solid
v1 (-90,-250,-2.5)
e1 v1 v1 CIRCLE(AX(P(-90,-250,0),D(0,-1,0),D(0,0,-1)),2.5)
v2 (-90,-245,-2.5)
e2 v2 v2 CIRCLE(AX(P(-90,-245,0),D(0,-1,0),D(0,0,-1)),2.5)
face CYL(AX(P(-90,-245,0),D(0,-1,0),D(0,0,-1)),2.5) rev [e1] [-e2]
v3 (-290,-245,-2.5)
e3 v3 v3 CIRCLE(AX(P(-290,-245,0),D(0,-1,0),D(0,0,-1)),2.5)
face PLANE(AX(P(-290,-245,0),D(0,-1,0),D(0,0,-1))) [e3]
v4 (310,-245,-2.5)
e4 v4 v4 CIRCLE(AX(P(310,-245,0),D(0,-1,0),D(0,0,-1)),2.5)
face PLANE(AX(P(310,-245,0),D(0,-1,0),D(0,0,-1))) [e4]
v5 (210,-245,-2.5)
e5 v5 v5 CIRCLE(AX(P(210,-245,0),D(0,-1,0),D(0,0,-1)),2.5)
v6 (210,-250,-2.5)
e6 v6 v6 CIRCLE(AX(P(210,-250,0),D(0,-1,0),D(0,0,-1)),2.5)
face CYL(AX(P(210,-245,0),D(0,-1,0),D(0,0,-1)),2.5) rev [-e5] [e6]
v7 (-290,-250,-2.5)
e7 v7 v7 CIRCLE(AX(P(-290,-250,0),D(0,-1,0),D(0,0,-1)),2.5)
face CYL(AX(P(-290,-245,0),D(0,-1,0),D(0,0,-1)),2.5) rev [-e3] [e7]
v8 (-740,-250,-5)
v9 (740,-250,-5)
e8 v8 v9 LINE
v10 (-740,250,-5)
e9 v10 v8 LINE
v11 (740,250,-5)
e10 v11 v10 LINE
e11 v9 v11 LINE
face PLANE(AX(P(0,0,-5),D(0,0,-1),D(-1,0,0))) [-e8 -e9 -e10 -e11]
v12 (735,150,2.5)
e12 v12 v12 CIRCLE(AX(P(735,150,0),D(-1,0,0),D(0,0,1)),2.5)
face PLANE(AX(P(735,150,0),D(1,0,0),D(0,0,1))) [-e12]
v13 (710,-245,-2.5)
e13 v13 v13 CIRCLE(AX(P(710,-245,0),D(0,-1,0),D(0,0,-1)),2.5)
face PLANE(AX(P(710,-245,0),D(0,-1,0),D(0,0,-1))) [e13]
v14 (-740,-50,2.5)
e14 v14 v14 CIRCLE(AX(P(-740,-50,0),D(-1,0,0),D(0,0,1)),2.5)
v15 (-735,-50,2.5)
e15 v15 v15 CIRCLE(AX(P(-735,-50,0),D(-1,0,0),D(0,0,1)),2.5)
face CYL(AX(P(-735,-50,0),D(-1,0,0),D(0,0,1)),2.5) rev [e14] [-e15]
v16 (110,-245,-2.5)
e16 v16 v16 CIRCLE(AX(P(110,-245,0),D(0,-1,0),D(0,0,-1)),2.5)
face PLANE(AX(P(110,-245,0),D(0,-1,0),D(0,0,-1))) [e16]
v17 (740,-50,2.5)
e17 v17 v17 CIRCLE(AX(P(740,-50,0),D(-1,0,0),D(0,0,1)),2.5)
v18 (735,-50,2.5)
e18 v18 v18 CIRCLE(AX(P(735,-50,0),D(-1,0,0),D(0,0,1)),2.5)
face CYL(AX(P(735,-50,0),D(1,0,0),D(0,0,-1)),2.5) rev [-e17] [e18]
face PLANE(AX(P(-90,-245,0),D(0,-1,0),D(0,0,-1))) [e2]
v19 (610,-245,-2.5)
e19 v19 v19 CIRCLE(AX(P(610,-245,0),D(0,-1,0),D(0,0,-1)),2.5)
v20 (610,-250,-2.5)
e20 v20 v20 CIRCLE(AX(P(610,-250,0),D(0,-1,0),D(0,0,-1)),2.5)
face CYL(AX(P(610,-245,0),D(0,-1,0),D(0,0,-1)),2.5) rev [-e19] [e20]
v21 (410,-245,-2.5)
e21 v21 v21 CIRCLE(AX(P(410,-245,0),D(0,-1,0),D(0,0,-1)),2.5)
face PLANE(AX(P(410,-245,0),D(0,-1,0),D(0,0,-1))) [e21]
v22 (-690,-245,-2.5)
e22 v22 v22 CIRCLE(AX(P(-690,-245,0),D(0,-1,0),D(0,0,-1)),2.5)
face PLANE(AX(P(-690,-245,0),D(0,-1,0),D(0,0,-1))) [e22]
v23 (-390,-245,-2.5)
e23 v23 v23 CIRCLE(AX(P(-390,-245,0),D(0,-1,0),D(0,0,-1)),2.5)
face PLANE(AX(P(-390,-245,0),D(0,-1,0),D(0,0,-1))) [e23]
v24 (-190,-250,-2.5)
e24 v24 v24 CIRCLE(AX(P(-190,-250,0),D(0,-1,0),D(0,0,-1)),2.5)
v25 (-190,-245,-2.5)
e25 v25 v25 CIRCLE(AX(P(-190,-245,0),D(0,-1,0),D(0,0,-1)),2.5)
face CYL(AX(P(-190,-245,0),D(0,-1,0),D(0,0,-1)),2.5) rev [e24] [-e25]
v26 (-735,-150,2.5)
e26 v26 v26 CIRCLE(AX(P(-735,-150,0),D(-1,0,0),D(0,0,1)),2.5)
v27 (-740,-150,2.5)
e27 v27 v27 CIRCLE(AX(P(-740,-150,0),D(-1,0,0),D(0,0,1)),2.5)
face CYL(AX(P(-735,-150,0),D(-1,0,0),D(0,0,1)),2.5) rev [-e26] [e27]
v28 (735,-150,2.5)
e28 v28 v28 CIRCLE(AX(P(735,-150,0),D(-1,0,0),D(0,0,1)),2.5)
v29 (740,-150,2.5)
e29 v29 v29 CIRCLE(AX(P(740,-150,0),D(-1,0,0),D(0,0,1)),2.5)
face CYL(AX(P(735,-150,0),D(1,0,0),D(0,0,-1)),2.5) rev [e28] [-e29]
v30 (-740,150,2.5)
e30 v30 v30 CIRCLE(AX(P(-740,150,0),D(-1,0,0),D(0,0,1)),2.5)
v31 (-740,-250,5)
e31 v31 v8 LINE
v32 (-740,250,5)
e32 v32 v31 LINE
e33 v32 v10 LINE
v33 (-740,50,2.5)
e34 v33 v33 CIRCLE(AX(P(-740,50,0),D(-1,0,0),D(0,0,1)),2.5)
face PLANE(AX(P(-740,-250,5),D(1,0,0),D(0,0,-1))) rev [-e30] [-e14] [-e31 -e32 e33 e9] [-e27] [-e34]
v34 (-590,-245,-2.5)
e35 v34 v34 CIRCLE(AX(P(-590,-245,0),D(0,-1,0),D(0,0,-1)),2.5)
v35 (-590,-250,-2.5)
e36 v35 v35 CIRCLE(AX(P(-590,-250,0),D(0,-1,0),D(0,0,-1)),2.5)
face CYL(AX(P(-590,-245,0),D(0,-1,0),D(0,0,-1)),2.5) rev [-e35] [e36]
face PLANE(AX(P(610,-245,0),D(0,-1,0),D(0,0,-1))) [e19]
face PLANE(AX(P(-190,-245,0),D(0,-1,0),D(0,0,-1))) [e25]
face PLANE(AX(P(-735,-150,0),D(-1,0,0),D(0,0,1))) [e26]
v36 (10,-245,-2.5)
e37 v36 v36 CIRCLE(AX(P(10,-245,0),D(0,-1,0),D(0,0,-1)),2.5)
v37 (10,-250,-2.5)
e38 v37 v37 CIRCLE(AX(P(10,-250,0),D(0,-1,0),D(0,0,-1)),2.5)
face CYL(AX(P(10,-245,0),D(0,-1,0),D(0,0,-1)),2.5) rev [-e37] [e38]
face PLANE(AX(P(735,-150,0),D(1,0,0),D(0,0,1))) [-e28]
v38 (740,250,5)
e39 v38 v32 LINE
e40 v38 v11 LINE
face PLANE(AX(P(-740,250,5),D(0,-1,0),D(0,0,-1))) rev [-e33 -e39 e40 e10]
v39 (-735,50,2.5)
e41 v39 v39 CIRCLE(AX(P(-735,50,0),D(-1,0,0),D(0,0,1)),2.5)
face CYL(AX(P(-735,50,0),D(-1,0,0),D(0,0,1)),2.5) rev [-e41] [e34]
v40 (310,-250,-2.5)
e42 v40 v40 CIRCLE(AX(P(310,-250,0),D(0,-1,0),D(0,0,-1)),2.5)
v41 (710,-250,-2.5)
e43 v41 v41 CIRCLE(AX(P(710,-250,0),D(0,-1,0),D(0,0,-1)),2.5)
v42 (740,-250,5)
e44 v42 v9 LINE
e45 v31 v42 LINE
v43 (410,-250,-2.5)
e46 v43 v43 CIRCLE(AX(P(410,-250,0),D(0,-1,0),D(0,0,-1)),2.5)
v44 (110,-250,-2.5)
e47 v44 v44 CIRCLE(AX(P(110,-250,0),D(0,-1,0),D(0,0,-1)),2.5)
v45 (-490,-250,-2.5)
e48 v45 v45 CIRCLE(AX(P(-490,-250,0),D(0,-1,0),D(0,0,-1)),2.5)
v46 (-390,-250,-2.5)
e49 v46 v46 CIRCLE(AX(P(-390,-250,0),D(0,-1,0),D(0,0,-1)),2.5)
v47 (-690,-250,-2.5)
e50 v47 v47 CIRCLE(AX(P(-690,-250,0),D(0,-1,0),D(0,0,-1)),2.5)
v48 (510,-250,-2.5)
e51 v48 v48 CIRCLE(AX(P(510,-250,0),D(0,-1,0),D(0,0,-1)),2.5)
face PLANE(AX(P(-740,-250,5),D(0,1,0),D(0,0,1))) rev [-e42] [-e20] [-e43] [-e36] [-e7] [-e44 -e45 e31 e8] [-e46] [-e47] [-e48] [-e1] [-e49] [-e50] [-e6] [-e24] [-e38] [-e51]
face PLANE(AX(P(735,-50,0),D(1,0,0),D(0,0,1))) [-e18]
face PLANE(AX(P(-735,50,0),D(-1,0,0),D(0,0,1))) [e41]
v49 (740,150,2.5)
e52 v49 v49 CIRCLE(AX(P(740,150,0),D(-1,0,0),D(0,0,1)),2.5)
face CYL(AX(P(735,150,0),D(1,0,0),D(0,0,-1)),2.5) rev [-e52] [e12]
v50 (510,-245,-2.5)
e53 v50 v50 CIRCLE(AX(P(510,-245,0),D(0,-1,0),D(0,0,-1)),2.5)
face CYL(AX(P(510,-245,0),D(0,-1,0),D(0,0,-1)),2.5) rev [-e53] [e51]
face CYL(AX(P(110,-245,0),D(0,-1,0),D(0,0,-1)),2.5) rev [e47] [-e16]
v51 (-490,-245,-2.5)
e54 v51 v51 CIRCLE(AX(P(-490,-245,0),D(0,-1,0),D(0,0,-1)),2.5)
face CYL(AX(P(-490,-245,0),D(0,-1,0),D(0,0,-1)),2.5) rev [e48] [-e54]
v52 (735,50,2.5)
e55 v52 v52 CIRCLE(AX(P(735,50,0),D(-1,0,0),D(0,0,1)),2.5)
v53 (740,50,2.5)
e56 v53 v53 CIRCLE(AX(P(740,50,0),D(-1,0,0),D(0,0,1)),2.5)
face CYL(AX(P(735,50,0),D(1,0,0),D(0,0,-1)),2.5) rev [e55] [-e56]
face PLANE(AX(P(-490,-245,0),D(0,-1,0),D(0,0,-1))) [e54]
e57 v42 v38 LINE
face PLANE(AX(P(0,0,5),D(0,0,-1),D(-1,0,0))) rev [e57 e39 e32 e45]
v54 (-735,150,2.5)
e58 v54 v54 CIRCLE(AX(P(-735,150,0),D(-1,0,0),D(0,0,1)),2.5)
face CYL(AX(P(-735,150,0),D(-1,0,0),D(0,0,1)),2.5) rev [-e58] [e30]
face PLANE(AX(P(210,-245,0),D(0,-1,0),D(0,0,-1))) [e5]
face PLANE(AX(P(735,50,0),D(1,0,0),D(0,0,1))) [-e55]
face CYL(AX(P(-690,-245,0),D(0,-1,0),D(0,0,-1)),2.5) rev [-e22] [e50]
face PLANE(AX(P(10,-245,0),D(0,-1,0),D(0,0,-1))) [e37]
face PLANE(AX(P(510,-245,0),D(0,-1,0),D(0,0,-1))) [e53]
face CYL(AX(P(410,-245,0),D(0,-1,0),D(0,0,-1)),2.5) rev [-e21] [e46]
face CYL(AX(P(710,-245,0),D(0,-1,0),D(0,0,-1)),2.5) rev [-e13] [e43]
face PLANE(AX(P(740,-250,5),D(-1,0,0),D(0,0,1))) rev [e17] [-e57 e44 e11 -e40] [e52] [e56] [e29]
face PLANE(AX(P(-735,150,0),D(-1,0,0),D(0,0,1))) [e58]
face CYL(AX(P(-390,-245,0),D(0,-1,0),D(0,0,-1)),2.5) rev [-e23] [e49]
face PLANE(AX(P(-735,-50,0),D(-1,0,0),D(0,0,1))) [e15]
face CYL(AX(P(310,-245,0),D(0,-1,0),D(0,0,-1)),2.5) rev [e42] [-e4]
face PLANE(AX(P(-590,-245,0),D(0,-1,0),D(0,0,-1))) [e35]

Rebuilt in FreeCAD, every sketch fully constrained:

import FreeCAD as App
import Part
import Sketcher
from FreeCAD import Vector

doc = App.newDocument("Part")
body = doc.addObject("PartDesign::Body", "Body")

# Sketch on XY plane
sketch1 = body.newObject("Sketcher::SketchObject", "Sketch")
sketch1.AttachmentSupport = (doc.getObject("XY_Plane"), [""])
sketch1.MapMode = "FlatFace"
sketch1.addGeometry(Part.LineSegment(Vector(-740, 250, 0), Vector(-740, -250, 0)), False)
sketch1.addGeometry(Part.LineSegment(Vector(-740, -250, 0), Vector(740, -250, 0)), False)
sketch1.addGeometry(Part.LineSegment(Vector(740, -250, 0), Vector(740, 250, 0)), False)
sketch1.addGeometry(Part.LineSegment(Vector(740, 250, 0), Vector(-740, 250, 0)), False)
sketch1.addConstraint(Sketcher.Constraint("Coincident", 0, 2, 1, 1))
sketch1.addConstraint(Sketcher.Constraint("Coincident", 1, 2, 2, 1))
sketch1.addConstraint(Sketcher.Constraint("Coincident", 2, 2, 3, 1))
sketch1.addConstraint(Sketcher.Constraint("Coincident", 3, 2, 0, 1))
sketch1.addConstraint(Sketcher.Constraint("Vertical", 0))
sketch1.addConstraint(Sketcher.Constraint("Horizontal", 1))
sketch1.addConstraint(Sketcher.Constraint("Vertical", 2))
sketch1.addConstraint(Sketcher.Constraint("Horizontal", 3))
sketch1.addConstraint(Sketcher.Constraint("Symmetric", 0, 2, 2, 2, -1, 1))
sketch1.addConstraint(Sketcher.Constraint("DistanceX", 1, 1, 1, 2, 1480.0))
sketch1.addConstraint(Sketcher.Constraint("DistanceY", 0, 2, 0, 1, 500.0))
pad1 = body.newObject("PartDesign::Pad", "Pad")
pad1.Profile = sketch1
pad1.Length = 10
pad1.Midplane = True

# Sketch on XZ plane
sketch2 = body.newObject("Sketcher::SketchObject", "Sketch001")
sketch2.AttachmentSupport = (doc.getObject("XZ_Plane"), [""])
sketch2.MapMode = "FlatFace"
sketch2.AttachmentOffset = App.Placement(Vector(0, 0, 250), App.Rotation())
sketch2.addGeometry(Part.Circle(Vector(-690, 0, 0), Vector(0, 0, 1), 2.5), False)
sketch2.addGeometry(Part.Circle(Vector(-590, 0, 0), Vector(0, 0, 1), 2.5), False)
sketch2.addGeometry(Part.Circle(Vector(-490, 0, 0), Vector(0, 0, 1), 2.5), False)
sketch2.addGeometry(Part.Circle(Vector(-390, 0, 0), Vector(0, 0, 1), 2.5), False)
sketch2.addGeometry(Part.Circle(Vector(-290, 0, 0), Vector(0, 0, 1), 2.5), False)
sketch2.addGeometry(Part.Circle(Vector(-190, 0, 0), Vector(0, 0, 1), 2.5), False)
sketch2.addGeometry(Part.Circle(Vector(-90, 0, 0), Vector(0, 0, 1), 2.5), False)
sketch2.addGeometry(Part.Circle(Vector(10, 0, 0), Vector(0, 0, 1), 2.5), False)
sketch2.addGeometry(Part.Circle(Vector(110, 0, 0), Vector(0, 0, 1), 2.5), False)
sketch2.addGeometry(Part.Circle(Vector(210, 0, 0), Vector(0, 0, 1), 2.5), False)
sketch2.addGeometry(Part.Circle(Vector(310, 0, 0), Vector(0, 0, 1), 2.5), False)
sketch2.addGeometry(Part.Circle(Vector(410, 0, 0), Vector(0, 0, 1), 2.5), False)
sketch2.addGeometry(Part.Circle(Vector(510, 0, 0), Vector(0, 0, 1), 2.5), False)
sketch2.addGeometry(Part.Circle(Vector(610, 0, 0), Vector(0, 0, 1), 2.5), False)
sketch2.addGeometry(Part.Circle(Vector(710, 0, 0), Vector(0, 0, 1), 2.5), False)
sketch2.addConstraint(Sketcher.Constraint("Equal", 0, 1))
sketch2.addConstraint(Sketcher.Constraint("Equal", 1, 2))
sketch2.addConstraint(Sketcher.Constraint("Equal", 2, 3))
sketch2.addConstraint(Sketcher.Constraint("Equal", 3, 4))
sketch2.addConstraint(Sketcher.Constraint("Equal", 4, 5))
sketch2.addConstraint(Sketcher.Constraint("Equal", 5, 6))
sketch2.addConstraint(Sketcher.Constraint("Equal", 6, 7))
sketch2.addConstraint(Sketcher.Constraint("Equal", 7, 8))
sketch2.addConstraint(Sketcher.Constraint("Equal", 8, 9))
sketch2.addConstraint(Sketcher.Constraint("Equal", 9, 10))
sketch2.addConstraint(Sketcher.Constraint("Equal", 10, 11))
sketch2.addConstraint(Sketcher.Constraint("Equal", 11, 12))
sketch2.addConstraint(Sketcher.Constraint("Equal", 12, 13))
sketch2.addConstraint(Sketcher.Constraint("Equal", 13, 14))
sketch2.addConstraint(Sketcher.Constraint("PointOnObject", 0, 3, -1))
sketch2.addConstraint(Sketcher.Constraint("PointOnObject", 1, 3, -1))
sketch2.addConstraint(Sketcher.Constraint("PointOnObject", 2, 3, -1))
sketch2.addConstraint(Sketcher.Constraint("PointOnObject", 3, 3, -1))
sketch2.addConstraint(Sketcher.Constraint("PointOnObject", 4, 3, -1))
sketch2.addConstraint(Sketcher.Constraint("PointOnObject", 5, 3, -1))
sketch2.addConstraint(Sketcher.Constraint("PointOnObject", 6, 3, -1))
sketch2.addConstraint(Sketcher.Constraint("PointOnObject", 7, 3, -1))
sketch2.addConstraint(Sketcher.Constraint("PointOnObject", 8, 3, -1))
sketch2.addConstraint(Sketcher.Constraint("PointOnObject", 9, 3, -1))
sketch2.addConstraint(Sketcher.Constraint("PointOnObject", 10, 3, -1))
sketch2.addConstraint(Sketcher.Constraint("PointOnObject", 11, 3, -1))
sketch2.addConstraint(Sketcher.Constraint("PointOnObject", 12, 3, -1))
sketch2.addConstraint(Sketcher.Constraint("PointOnObject", 13, 3, -1))
sketch2.addConstraint(Sketcher.Constraint("PointOnObject", 14, 3, -1))
sketch2.addConstraint(Sketcher.Constraint("Diameter", 0, 5.0))
sketch2.addConstraint(Sketcher.Constraint("DistanceX", 0, 3, -1, 1, 690.0))
sketch2.addConstraint(Sketcher.Constraint("DistanceX", 1, 3, -1, 1, 590.0))
sketch2.addConstraint(Sketcher.Constraint("DistanceX", 2, 3, -1, 1, 490.0))
sketch2.addConstraint(Sketcher.Constraint("DistanceX", 3, 3, -1, 1, 390.0))
sketch2.addConstraint(Sketcher.Constraint("DistanceX", 4, 3, -1, 1, 290.0))
sketch2.addConstraint(Sketcher.Constraint("DistanceX", 5, 3, -1, 1, 190.0))
sketch2.addConstraint(Sketcher.Constraint("DistanceX", 6, 3, -1, 1, 90.0))
sketch2.addConstraint(Sketcher.Constraint("DistanceX", -1, 1, 7, 3, 10.0))
sketch2.addConstraint(Sketcher.Constraint("DistanceX", -1, 1, 8, 3, 110.0))
sketch2.addConstraint(Sketcher.Constraint("DistanceX", -1, 1, 9, 3, 210.0))
sketch2.addConstraint(Sketcher.Constraint("DistanceX", -1, 1, 10, 3, 310.0))
sketch2.addConstraint(Sketcher.Constraint("DistanceX", -1, 1, 11, 3, 410.0))
sketch2.addConstraint(Sketcher.Constraint("DistanceX", -1, 1, 12, 3, 510.0))
sketch2.addConstraint(Sketcher.Constraint("DistanceX", -1, 1, 13, 3, 610.0))
sketch2.addConstraint(Sketcher.Constraint("DistanceX", -1, 1, 14, 3, 710.0))
pocket1 = body.newObject("PartDesign::Pocket", "Pocket")
pocket1.Profile = sketch2
pocket1.Length = 5

# Sketch on YZ plane
sketch3 = body.newObject("Sketcher::SketchObject", "Sketch002")
sketch3.AttachmentSupport = (doc.getObject("YZ_Plane"), [""])
sketch3.MapMode = "FlatFace"
sketch3.AttachmentOffset = App.Placement(Vector(0, 0, -740), App.Rotation())
sketch3.addGeometry(Part.Circle(Vector(-150, 0, 0), Vector(0, 0, 1), 2.5), False)
sketch3.addGeometry(Part.Circle(Vector(-50, 0, 0), Vector(0, 0, 1), 2.5), False)
sketch3.addGeometry(Part.Circle(Vector(50, 0, 0), Vector(0, 0, 1), 2.5), False)
sketch3.addGeometry(Part.Circle(Vector(150, 0, 0), Vector(0, 0, 1), 2.5), False)
sketch3.addConstraint(Sketcher.Constraint("Equal", 0, 1))
sketch3.addConstraint(Sketcher.Constraint("Equal", 1, 2))
sketch3.addConstraint(Sketcher.Constraint("Equal", 2, 3))
sketch3.addConstraint(Sketcher.Constraint("Symmetric", 1, 3, 2, 3, -1, 1))
sketch3.addConstraint(Sketcher.Constraint("Symmetric", 0, 3, 3, 3, -1, 1))
sketch3.addConstraint(Sketcher.Constraint("PointOnObject", 0, 3, -1))
sketch3.addConstraint(Sketcher.Constraint("PointOnObject", 1, 3, -1))
sketch3.addConstraint(Sketcher.Constraint("Diameter", 0, 5.0))
sketch3.addConstraint(Sketcher.Constraint("DistanceX", 0, 3, -1, 1, 150.0))
sketch3.addConstraint(Sketcher.Constraint("DistanceX", 1, 3, -1, 1, 50.0))
pocket2 = body.newObject("PartDesign::Pocket", "Pocket001")
pocket2.Profile = sketch3
pocket2.Length = 5
pocket2.Reversed = True
doc.recompute()

mirrored = body.newObject("PartDesign::Mirrored", "Mirrored")
mirrored.Originals = [pocket2]
mirrored.MirrorPlane = (doc.getObject("YZ_Plane"), [""])
body.Tip = mirrored

doc.recompute()
